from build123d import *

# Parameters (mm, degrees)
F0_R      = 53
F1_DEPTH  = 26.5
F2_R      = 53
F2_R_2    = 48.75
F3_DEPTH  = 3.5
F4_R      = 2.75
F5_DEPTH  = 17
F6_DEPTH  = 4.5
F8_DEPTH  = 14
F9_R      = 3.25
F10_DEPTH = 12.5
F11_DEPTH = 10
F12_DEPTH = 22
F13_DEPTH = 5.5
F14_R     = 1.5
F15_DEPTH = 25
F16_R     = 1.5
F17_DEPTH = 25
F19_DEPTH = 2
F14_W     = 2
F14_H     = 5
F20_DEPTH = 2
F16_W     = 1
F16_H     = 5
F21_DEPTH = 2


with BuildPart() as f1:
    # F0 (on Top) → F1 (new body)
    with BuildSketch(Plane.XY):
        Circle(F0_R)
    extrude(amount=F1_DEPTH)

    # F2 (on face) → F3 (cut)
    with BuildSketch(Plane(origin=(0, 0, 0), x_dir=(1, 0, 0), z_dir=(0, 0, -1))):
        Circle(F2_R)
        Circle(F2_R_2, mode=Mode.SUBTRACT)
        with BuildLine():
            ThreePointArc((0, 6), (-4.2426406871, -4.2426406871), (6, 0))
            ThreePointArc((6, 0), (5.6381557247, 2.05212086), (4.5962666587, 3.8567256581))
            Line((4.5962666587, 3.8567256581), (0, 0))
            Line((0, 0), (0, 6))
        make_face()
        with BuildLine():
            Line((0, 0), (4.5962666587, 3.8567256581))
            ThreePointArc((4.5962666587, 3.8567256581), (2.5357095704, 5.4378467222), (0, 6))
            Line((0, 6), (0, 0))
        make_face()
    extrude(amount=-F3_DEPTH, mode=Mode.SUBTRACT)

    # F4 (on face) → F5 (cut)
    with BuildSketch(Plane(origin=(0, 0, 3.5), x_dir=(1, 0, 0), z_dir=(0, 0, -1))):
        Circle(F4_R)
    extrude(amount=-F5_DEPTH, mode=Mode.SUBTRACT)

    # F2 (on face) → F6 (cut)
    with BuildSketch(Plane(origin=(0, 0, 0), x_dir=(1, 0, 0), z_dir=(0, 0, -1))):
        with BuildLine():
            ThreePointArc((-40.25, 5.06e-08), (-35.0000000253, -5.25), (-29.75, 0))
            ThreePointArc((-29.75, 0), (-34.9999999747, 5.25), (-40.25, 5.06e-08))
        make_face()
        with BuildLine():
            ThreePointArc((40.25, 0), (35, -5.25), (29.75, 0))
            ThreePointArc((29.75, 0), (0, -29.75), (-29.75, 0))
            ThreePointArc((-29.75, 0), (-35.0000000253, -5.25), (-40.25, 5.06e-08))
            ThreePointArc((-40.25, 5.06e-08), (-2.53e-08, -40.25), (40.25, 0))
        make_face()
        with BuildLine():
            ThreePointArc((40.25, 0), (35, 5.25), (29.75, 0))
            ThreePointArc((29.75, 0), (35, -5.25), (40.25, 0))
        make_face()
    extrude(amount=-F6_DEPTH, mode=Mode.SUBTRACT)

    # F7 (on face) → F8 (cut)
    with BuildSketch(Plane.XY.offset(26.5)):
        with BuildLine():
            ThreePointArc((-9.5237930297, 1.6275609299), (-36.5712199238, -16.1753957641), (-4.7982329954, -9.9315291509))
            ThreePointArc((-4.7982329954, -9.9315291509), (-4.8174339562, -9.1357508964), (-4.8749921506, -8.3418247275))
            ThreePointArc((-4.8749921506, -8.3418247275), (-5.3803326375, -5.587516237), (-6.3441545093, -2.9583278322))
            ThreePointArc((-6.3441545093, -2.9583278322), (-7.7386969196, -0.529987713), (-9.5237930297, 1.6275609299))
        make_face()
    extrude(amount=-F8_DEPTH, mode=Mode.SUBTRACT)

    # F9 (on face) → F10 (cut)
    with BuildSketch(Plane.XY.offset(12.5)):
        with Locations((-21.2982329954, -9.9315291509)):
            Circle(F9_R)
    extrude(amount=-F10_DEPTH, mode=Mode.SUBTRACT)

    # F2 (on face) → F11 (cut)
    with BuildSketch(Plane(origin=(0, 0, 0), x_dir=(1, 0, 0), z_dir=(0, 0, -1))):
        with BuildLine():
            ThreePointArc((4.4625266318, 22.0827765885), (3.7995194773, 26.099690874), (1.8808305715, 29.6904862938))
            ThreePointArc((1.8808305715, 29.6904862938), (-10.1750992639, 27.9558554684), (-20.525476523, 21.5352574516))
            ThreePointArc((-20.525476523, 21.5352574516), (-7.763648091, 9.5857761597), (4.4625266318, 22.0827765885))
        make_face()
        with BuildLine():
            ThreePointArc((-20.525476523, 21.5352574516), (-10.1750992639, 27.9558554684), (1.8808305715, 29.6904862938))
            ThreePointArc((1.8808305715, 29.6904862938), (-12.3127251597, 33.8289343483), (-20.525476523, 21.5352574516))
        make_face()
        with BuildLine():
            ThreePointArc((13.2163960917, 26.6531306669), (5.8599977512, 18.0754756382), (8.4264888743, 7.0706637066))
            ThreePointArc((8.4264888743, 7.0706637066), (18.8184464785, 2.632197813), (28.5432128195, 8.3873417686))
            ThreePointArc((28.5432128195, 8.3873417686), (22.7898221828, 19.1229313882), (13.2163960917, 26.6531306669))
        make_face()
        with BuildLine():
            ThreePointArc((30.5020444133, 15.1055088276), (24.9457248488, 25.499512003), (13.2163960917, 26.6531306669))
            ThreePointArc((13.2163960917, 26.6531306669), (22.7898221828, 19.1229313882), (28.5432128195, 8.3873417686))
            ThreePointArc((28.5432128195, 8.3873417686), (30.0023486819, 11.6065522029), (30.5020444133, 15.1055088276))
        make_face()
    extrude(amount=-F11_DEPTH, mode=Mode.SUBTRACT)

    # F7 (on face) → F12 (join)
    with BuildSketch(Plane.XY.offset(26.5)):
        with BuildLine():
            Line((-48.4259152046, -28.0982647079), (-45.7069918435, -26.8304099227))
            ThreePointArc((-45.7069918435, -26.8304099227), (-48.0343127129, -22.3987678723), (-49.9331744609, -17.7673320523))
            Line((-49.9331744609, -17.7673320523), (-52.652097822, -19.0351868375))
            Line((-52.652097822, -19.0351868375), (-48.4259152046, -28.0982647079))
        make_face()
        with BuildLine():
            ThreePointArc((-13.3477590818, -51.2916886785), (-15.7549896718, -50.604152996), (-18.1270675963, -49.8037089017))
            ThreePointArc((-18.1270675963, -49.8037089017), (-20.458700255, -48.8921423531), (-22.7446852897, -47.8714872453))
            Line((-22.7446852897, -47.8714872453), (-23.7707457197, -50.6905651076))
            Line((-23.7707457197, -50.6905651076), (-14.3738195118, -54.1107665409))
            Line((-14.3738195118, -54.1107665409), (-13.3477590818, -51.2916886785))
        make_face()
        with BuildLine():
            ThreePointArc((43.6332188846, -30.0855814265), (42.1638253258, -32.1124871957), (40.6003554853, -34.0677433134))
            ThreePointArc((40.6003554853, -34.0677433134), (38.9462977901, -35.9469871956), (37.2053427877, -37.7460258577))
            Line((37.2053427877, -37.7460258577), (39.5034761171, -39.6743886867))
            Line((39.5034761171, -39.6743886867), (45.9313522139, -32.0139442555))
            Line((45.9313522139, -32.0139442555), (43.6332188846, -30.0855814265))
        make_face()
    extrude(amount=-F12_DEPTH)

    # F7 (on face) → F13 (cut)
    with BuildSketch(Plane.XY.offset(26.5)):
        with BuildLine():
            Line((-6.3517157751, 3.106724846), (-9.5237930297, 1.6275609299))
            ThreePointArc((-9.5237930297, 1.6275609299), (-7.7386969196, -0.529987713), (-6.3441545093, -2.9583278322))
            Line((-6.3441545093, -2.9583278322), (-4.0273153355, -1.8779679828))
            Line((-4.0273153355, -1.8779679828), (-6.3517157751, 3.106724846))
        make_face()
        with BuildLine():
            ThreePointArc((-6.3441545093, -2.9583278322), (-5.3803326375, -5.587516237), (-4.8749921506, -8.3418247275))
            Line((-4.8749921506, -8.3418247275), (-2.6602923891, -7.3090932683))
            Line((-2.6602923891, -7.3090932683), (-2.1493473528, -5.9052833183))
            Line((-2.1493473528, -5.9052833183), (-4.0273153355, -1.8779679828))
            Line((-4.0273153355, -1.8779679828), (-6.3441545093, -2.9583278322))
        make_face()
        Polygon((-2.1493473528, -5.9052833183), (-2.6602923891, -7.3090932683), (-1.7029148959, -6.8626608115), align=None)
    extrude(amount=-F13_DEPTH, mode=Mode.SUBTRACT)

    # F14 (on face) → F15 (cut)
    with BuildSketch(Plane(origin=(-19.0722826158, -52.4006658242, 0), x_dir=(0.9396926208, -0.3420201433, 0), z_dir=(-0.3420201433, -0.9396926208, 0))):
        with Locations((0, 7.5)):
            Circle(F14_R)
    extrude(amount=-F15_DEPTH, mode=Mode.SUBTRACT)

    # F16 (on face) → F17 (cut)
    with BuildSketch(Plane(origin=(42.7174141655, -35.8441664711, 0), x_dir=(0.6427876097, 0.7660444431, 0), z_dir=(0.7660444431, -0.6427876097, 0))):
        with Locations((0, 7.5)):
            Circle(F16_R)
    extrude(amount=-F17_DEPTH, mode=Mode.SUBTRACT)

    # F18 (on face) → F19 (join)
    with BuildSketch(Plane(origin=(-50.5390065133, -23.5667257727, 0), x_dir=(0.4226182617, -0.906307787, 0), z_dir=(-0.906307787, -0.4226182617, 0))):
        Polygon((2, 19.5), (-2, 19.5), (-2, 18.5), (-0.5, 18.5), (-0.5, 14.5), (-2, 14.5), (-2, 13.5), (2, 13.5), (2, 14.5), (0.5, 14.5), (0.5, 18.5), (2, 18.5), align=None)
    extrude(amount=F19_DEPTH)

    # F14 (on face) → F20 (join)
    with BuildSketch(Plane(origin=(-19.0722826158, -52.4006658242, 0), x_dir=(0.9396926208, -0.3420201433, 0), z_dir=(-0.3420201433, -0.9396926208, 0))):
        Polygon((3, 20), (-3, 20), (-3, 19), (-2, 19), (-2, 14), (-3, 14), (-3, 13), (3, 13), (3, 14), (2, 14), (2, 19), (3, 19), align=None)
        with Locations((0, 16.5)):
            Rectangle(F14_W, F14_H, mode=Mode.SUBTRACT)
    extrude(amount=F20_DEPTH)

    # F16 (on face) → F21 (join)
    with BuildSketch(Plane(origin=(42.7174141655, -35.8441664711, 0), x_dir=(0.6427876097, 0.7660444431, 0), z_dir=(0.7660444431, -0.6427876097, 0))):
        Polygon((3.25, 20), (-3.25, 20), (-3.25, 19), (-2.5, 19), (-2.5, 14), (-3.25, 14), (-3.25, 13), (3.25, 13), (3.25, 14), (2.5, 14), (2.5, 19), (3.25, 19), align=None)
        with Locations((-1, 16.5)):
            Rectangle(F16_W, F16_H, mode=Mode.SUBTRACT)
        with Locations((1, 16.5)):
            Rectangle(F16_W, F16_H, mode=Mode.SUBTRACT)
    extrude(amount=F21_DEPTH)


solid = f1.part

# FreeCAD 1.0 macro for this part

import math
import FreeCAD as App
import Part
import Sketcher

V = App.Vector
Q = App.Units.Quantity

doc = App.newDocument("Part")
body = doc.addObject("PartDesign::Body", "Body")

sketch1 = doc.addObject("Sketcher::SketchObject", "Sketch")
body.addObject(sketch1)
sketch1.AttachmentSupport = (doc.XY_Plane, [""])
sketch1.MapMode = "FlatFace"
sketch1.addGeometry(Part.Circle(V(0, 0, 0), V(0, 0, 1), 53), False)
sketch1.addConstraint(Sketcher.Constraint("Coincident", 0, 3, -1, 1))
sketch1.addConstraint(Sketcher.Constraint("Diameter", 0, Q("106 mm")))
pad1 = doc.addObject("PartDesign::Pad", "Pad")
body.addObject(pad1)
pad1.Profile = sketch1
pad1.Length = 26.5

sketch2 = doc.addObject("Sketcher::SketchObject", "Sketch001")
body.addObject(sketch2)
sketch2.AttachmentSupport = (doc.XY_Plane, [""])
sketch2.MapMode = "FlatFace"
sketch2.addGeometry(Part.Circle(V(0, 0, 0), V(0, 0, 1), 53), False)
sketch2.addGeometry(Part.Circle(V(0, 0, 0), V(0, 0, 1), 48.75), False)
sketch2.addGeometry(Part.ArcOfCircle(Part.Circle(V(0, 0, 0), V(0, 0, 1), 6), math.radians(0), math.radians(270)), False)
sketch2.addGeometry(Part.ArcOfCircle(Part.Circle(V(0, 0, 0), V(0, 0, 1), 6), math.radians(-40), math.radians(0)), False)
sketch2.addGeometry(Part.ArcOfCircle(Part.Circle(V(0, 0, 0), V(0, 0, 1), 6), math.radians(-90), math.radians(-40)), False)
sketch2.addConstraint(Sketcher.Constraint("Tangent", 2, 1, 3, 2))
sketch2.addConstraint(Sketcher.Constraint("Tangent", 3, 1, 4, 2))
sketch2.addConstraint(Sketcher.Constraint("Tangent", 4, 1, 2, 2))
sketch2.addConstraint(Sketcher.Constraint("Coincident", 0, 3, -1, 1))
sketch2.addConstraint(Sketcher.Constraint("Coincident", 1, 3, -1, 1))
sketch2.addConstraint(Sketcher.Constraint("Coincident", 2, 3, -1, 1))
sketch2.addConstraint(Sketcher.Constraint("PointOnObject", 2, 1, -1))
sketch2.addConstraint(Sketcher.Constraint("PointOnObject", 4, 1, -2))
sketch2.addConstraint(Sketcher.Constraint("Diameter", 0, Q("106 mm")))
sketch2.addConstraint(Sketcher.Constraint("Radius", 2, Q("6 mm")))
sketch2.addConstraint(Sketcher.Constraint("Diameter", 1, Q("97.5 mm")))
sketch2.addConstraint(Sketcher.Constraint("DistanceX", -1, 1, 3, 1, Q("4.596267 mm")))
pocket1 = doc.addObject("PartDesign::Pocket", "Pocket")
body.addObject(pocket1)
pocket1.Profile = sketch2
pocket1.Length = 3.5
pocket1.Reversed = True

sketch3 = doc.addObject("Sketcher::SketchObject", "Sketch002")
body.addObject(sketch3)
sketch3.AttachmentSupport = (doc.XY_Plane, [""])
sketch3.MapMode = "FlatFace"
sketch3.AttachmentOffset = App.Placement(V(0, 0, 3.5), App.Rotation())
sketch3.addGeometry(Part.Circle(V(0, 0, 0), V(0, 0, 1), 2.75), False)
sketch3.addConstraint(Sketcher.Constraint("Coincident", 0, 3, -1, 1))
sketch3.addConstraint(Sketcher.Constraint("Diameter", 0, Q("5.5 mm")))
pocket2 = doc.addObject("PartDesign::Pocket", "Pocket001")
body.addObject(pocket2)
pocket2.Profile = sketch3
pocket2.Length = 17
pocket2.Reversed = True

sketch4 = doc.addObject("Sketcher::SketchObject", "Sketch003")
body.addObject(sketch4)
sketch4.AttachmentSupport = (doc.XY_Plane, [""])
sketch4.MapMode = "FlatFace"
sketch4.addGeometry(Part.ArcOfCircle(Part.Circle(V(-35, 0, 0), V(0, 0, 1), 5.25), math.radians(-179.999999), math.radians(0)), False)
sketch4.addGeometry(Part.ArcOfCircle(Part.Circle(V(0, 0, 0), V(0, 0, 1), 40.25), math.radians(0), math.radians(180)), False)
sketch4.addGeometry(Part.ArcOfCircle(Part.Circle(V(35, 0, 0), V(0, 0, 1), 5.25), math.radians(180), math.radians(360)), False)
sketch4.addGeometry(Part.ArcOfCircle(Part.Circle(V(0, 0, 0), V(0, 0, 1), 29.75), math.radians(0), math.radians(180)), False)
sketch4.addConstraint(Sketcher.Constraint("Tangent", 0, 1, 1, 2))
sketch4.addConstraint(Sketcher.Constraint("Tangent", 1, 1, 2, 2))
sketch4.addConstraint(Sketcher.Constraint("Tangent", 2, 1, 3, 1))
sketch4.addConstraint(Sketcher.Constraint("Tangent", 3, 2, 0, 2))
sketch4.addConstraint(Sketcher.Constraint("Coincident", 1, 3, -1, 1))
sketch4.addConstraint(Sketcher.Constraint("Coincident", 3, 3, -1, 1))
sketch4.addConstraint(Sketcher.Constraint("PointOnObject", 0, 3, -1))
sketch4.addConstraint(Sketcher.Constraint("PointOnObject", 2, 3, -1))
sketch4.addConstraint(Sketcher.Constraint("Radius", 0, Q("5.25 mm")))
sketch4.addConstraint(Sketcher.Constraint("Radius", 1, Q("40.25 mm")))
pocket3 = doc.addObject("PartDesign::Pocket", "Pocket002")
body.addObject(pocket3)
pocket3.Profile = sketch4
pocket3.Length = 4.5
pocket3.Reversed = True

sketch5 = doc.addObject("Sketcher::SketchObject", "Sketch004")
body.addObject(sketch5)
sketch5.AttachmentSupport = (doc.XY_Plane, [""])
sketch5.MapMode = "FlatFace"
sketch5.AttachmentOffset = App.Placement(V(0, 0, 26.5), App.Rotation())
sketch5.addGeometry(Part.ArcOfCircle(Part.Circle(V(-21.298233, -9.931529, 0), V(0, 0, 1), 16.5), math.radians(44.471221), math.radians(360)), False)
sketch5.addGeometry(Part.ArcOfCircle(Part.Circle(V(-21.298233, -9.931529, 0), V(0, 0, 1), 16.5), math.radians(0), math.radians(5.528779)), False)
sketch5.addGeometry(Part.ArcOfCircle(Part.Circle(V(-21.298233, -9.931529, 0), V(0, 0, 1), 16.5), math.radians(5.528779), math.radians(25)), False)
sketch5.addGeometry(Part.ArcOfCircle(Part.Circle(V(-21.298233, -9.931529, 0), V(0, 0, 1), 16.5), math.radians(25), math.radians(44.471221)), False)
sketch5.addConstraint(Sketcher.Constraint("Tangent", 0, 2, 1, 1))
sketch5.addConstraint(Sketcher.Constraint("Tangent", 1, 2, 2, 1))
sketch5.addConstraint(Sketcher.Constraint("Tangent", 2, 2, 3, 1))
sketch5.addConstraint(Sketcher.Constraint("Tangent", 3, 2, 0, 1))
sketch5.addConstraint(Sketcher.Constraint("Equal", 0, 1))
sketch5.addConstraint(Sketcher.Constraint("Horizontal", 3, 3, 0, 2))
sketch5.addConstraint(Sketcher.Constraint("Radius", 0, Q("16.5 mm")))
sketch5.addConstraint(Sketcher.Constraint("DistanceY", 0, 2, 2, 2, Q("6.973201 mm")))
sketch5.addConstraint(Sketcher.Constraint("DistanceX", 3, 2, 1, 2, Q("4.648801 mm")))
sketch5.addConstraint(Sketcher.Constraint("DistanceY", 0, 3, -1, 1, Q("9.931529 mm")))
sketch5.addConstraint(Sketcher.Constraint("DistanceY", -1, 1, 3, 2, Q("1.627561 mm")))
sketch5.addConstraint(Sketcher.Constraint("DistanceX", 0, 3, -1, 1, Q("21.298233 mm")))
pocket4 = doc.addObject("PartDesign::Pocket", "Pocket003")
body.addObject(pocket4)
pocket4.Profile = sketch5
pocket4.Length = 14

sketch6 = doc.addObject("Sketcher::SketchObject", "Sketch005")
body.addObject(sketch6)
sketch6.AttachmentSupport = (doc.XY_Plane, [""])
sketch6.MapMode = "FlatFace"
sketch6.AttachmentOffset = App.Placement(V(0, 0, 12.5), App.Rotation())
sketch6.addGeometry(Part.Circle(V(-21.298233, -9.931529, 0), V(0, 0, 1), 3.25), False)
sketch6.addConstraint(Sketcher.Constraint("Diameter", 0, Q("6.5 mm")))
sketch6.addConstraint(Sketcher.Constraint("DistanceY", 0, 3, -1, 1, Q("9.931529 mm")))
sketch6.addConstraint(Sketcher.Constraint("DistanceX", 0, 3, -1, 1, Q("21.298233 mm")))
pocket5 = doc.addObject("PartDesign::Pocket", "Pocket004")
body.addObject(pocket5)
pocket5.Profile = sketch6
pocket5.Length = 12.5

sketch7 = doc.addObject("Sketcher::SketchObject", "Sketch006")
body.addObject(sketch7)
sketch7.AttachmentSupport = (doc.XY_Plane, [""])
sketch7.MapMode = "FlatFace"
sketch7.addGeometry(Part.ArcOfCircle(Part.Circle(V(-8.037473, -22.082777, 0), V(0, 0, 1), 12.5), math.radians(-37.489554), math.radians(0)), False)
sketch7.addGeometry(Part.ArcOfCircle(Part.Circle(V(-8.037473, -22.082777, 0), V(0, 0, 1), 12.5), math.radians(177.489554), math.radians(322.510446)), False)
sketch7.addGeometry(Part.ArcOfCircle(Part.Circle(V(-8.037473, -22.082777, 0), V(0, 0, 1), 12.5), math.radians(0), math.radians(177.489554)), False)
sketch7.addGeometry(Part.ArcOfCircle(Part.Circle(V(18.002044, -15.105509, 0), V(0, 0, 1), 12.5), math.radians(140), math.radians(247.489554)), False)
sketch7.addGeometry(Part.ArcOfCircle(Part.Circle(V(18.002044, -15.105509, 0), V(0, 0, 1), 12.5), math.radians(32.510446), math.radians(140)), False)
sketch7.addGeometry(Part.ArcOfCircle(Part.Circle(V(18.002044, -15.105509, 0), V(0, 0, 1), 12.5), math.radians(0), math.radians(32.510446)), False)
sketch7.addGeometry(Part.ArcOfCircle(Part.Circle(V(18.002044, -15.105509, 0), V(0, 0, 1), 12.5), math.radians(-112.510446), math.radians(0)), False)
sketch7.addConstraint(Sketcher.Constraint("Tangent", 0, 1, 1, 2))
sketch7.addConstraint(Sketcher.Constraint("Tangent", 1, 1, 2, 2))
sketch7.addConstraint(Sketcher.Constraint("Tangent", 2, 1, 0, 2))
sketch7.addConstraint(Sketcher.Constraint("Tangent", 3, 1, 4, 2))
sketch7.addConstraint(Sketcher.Constraint("Tangent", 4, 1, 5, 2))
sketch7.addConstraint(Sketcher.Constraint("Tangent", 5, 1, 6, 2))
sketch7.addConstraint(Sketcher.Constraint("Tangent", 6, 1, 3, 2))
sketch7.addConstraint(Sketcher.Constraint("Equal", 2, 3))
sketch7.addConstraint(Sketcher.Constraint("Equal", 3, 4))
sketch7.addConstraint(Sketcher.Constraint("Horizontal", 1, 3, 2, 1))
sketch7.addConstraint(Sketcher.Constraint("Horizontal", 6, 3, 5, 1))
sketch7.addConstraint(Sketcher.Constraint("Radius", 0, Q("12.5 mm")))
sketch7.addConstraint(Sketcher.Constraint("DistanceY", 3, 3, -1, 1, Q("15.105509 mm")))
sketch7.addConstraint(Sketcher.Constraint("DistanceX", -1, 1, 0, 1, Q("1.880831 mm")))
sketch7.addConstraint(Sketcher.Constraint("DistanceX", -1, 1, 3, 1, Q("8.426489 mm")))
sketch7.addConstraint(Sketcher.Constraint("DistanceY", 4, 1, -1, 1, Q("8.387342 mm")))
sketch7.addConstraint(Sketcher.Constraint("DistanceY", 6, 1, -1, 1, Q("26.653131 mm")))
sketch7.addConstraint(Sketcher.Constraint("DistanceY", 0, 1, 0, 3, Q("7.60771 mm")))
sketch7.addConstraint(Sketcher.Constraint("DistanceY", 1, 3, 1, 1, Q("0.547519 mm")))
sketch7.addConstraint(Sketcher.Constraint("DistanceX", 1, 1, 3, 3, Q("38.527521 mm")))
sketch7.addConstraint(Sketcher.Constraint("DistanceY", 1, 1, 3, 3, Q("6.429749 mm")))
pocket6 = doc.addObject("PartDesign::Pocket", "Pocket005")
body.addObject(pocket6)
pocket6.Profile = sketch7
pocket6.Length = 10
pocket6.Reversed = True

sketch8 = doc.addObject("Sketcher::SketchObject", "Sketch007")
body.addObject(sketch8)
sketch8.AttachmentSupport = (doc.XY_Plane, [""])
sketch8.MapMode = "FlatFace"
sketch8.AttachmentOffset = App.Placement(V(0, 0, 26.5), App.Rotation())
sketch8.addGeometry(Part.LineSegment(V(-48.425915, -28.098265, 0), V(-45.706992, -26.83041, 0)), False)
sketch8.addGeometry(Part.ArcOfCircle(Part.Circle(V(0, 0, 0), V(0, 0, 1), 53), math.radians(-160.413312), math.radians(-149.586688)), False)
sketch8.addGeometry(Part.LineSegment(V(-49.933174, -17.767332, 0), V(-52.652098, -19.035187, 0)), False)
sketch8.addGeometry(Part.LineSegment(V(-52.652098, -19.035187, 0), V(-48.425915, -28.098265, 0)), False)
sketch8.addGeometry(Part.ArcOfCircle(Part.Circle(V(0, 0, 0), V(0, 0, 1), 53), math.radians(-110), math.radians(-104.586688)), False)
sketch8.addGeometry(Part.ArcOfCircle(Part.Circle(V(0, 0, 0), V(0, 0, 1), 53), math.radians(-115.413312), math.radians(-110)), False)
sketch8.addGeometry(Part.LineSegment(V(-22.744685, -47.871487, 0), V(-23.770746, -50.690565, 0)), False)
sketch8.addGeometry(Part.LineSegment(V(-23.770746, -50.690565, 0), V(-14.37382, -54.110767, 0)), False)
sketch8.addGeometry(Part.LineSegment(V(-14.37382, -54.110767, 0), V(-13.347759, -51.291689, 0)), False)
sketch8.addGeometry(Part.ArcOfCircle(Part.Circle(V(0, 0, 0), V(0, 0, 1), 53), math.radians(-40), math.radians(-34.586688)), False)
sketch8.addGeometry(Part.ArcOfCircle(Part.Circle(V(0, 0, 0), V(0, 0, 1), 53), math.radians(-45.413312), math.radians(-40)), False)
sketch8.addGeometry(Part.LineSegment(V(37.205343, -37.746026, 0), V(39.503476, -39.674389, 0)), False)
sketch8.addGeometry(Part.LineSegment(V(39.503476, -39.674389, 0), V(45.931352, -32.013944, 0)), False)
sketch8.addGeometry(Part.LineSegment(V(45.931352, -32.013944, 0), V(43.633219, -30.085581, 0)), False)
sketch8.addConstraint(Sketcher.Constraint("Coincident", 0, 2, 1, 2))
sketch8.addConstraint(Sketcher.Constraint("Coincident", 1, 1, 2, 1))
sketch8.addConstraint(Sketcher.Constraint("Coincident", 2, 2, 3, 1))
sketch8.addConstraint(Sketcher.Constraint("Coincident", 3, 2, 0, 1))
sketch8.addConstraint(Sketcher.Constraint("Tangent", 4, 1, 5, 2))
sketch8.addConstraint(Sketcher.Constraint("Coincident", 5, 1, 6, 1))
sketch8.addConstraint(Sketcher.Constraint("Coincident", 6, 2, 7, 1))
sketch8.addConstraint(Sketcher.Constraint("Coincident", 7, 2, 8, 1))
sketch8.addConstraint(Sketcher.Constraint("Coincident", 8, 2, 4, 2))
sketch8.addConstraint(Sketcher.Constraint("Tangent", 9, 1, 10, 2))
sketch8.addConstraint(Sketcher.Constraint("Coincident", 10, 1, 11, 1))
sketch8.addConstraint(Sketcher.Constraint("Coincident", 11, 2, 12, 1))
sketch8.addConstraint(Sketcher.Constraint("Coincident", 12, 2, 13, 1))
sketch8.addConstraint(Sketcher.Constraint("Coincident", 13, 2, 9, 2))
sketch8.addConstraint(Sketcher.Constraint("Coincident", 1, 3, -1, 1))
sketch8.addConstraint(Sketcher.Constraint("Coincident", 4, 3, -1, 1))
sketch8.addConstraint(Sketcher.Constraint("Coincident", 9, 3, -1, 1))
sketch8.addConstraint(Sketcher.Constraint("Equal", 1, 4))
sketch8.addConstraint(Sketcher.Constraint("Equal", 4, 5))
sketch8.addConstraint(Sketcher.Constraint("Equal", 5, 9))
sketch8.addConstraint(Sketcher.Constraint("Equal", 9, 10))
sketch8.addConstraint(Sketcher.Constraint("Parallel", 0, 2))
sketch8.addConstraint(Sketcher.Constraint("Perpendicular", 2, 3))
sketch8.addConstraint(Sketcher.Constraint("Perpendicular", 6, 7))
sketch8.addConstraint(Sketcher.Constraint("Perpendicular", 7, 8))
sketch8.addConstraint(Sketcher.Constraint("Perpendicular", 11, 12))
sketch8.addConstraint(Sketcher.Constraint("Perpendicular", 12, 13))
sketch8.addConstraint(Sketcher.Constraint("Equal", 0, 2))
sketch8.addConstraint(Sketcher.Constraint("Equal", 2, 6))
sketch8.addConstraint(Sketcher.Constraint("Equal", 3, 7))
sketch8.addConstraint(Sketcher.Constraint("Equal", 6, 8))
sketch8.addConstraint(Sketcher.Constraint("Equal", 8, 11))
sketch8.addConstraint(Sketcher.Constraint("Equal", 7, 12))
sketch8.addConstraint(Sketcher.Constraint("Equal", 11, 13))
sketch8.addConstraint(Sketcher.Constraint("Radius", 1, Q("53 mm")))
sketch8.addConstraint(Sketcher.Constraint("Angle", 0, Q("25 deg")))
sketch8.addConstraint(Sketcher.Constraint("Angle", 6, Q("-110 deg")))
sketch8.addConstraint(Sketcher.Constraint("Angle", 11, Q("-40 deg")))
sketch8.addConstraint(Sketcher.Constraint("Distance", 0, Q("3 mm")))
sketch8.addConstraint(Sketcher.Constraint("Distance", 3, Q("10 mm")))
sketch8.addConstraint(Sketcher.Constraint("DistanceY", 4, 1, 0, 2, Q("22.973299 mm")))
sketch8.addConstraint(Sketcher.Constraint("DistanceY", 9, 1, 12, 2, Q("2.053799 mm")))
pad2 = doc.addObject("PartDesign::Pad", "Pad001")
body.addObject(pad2)
pad2.Profile = sketch8
pad2.Length = 22
pad2.Reversed = True

sketch9 = doc.addObject("Sketcher::SketchObject", "Sketch008")
body.addObject(sketch9)
sketch9.AttachmentSupport = (doc.XY_Plane, [""])
sketch9.MapMode = "FlatFace"
sketch9.AttachmentOffset = App.Placement(V(0, 0, 26.5), App.Rotation())
sketch9.addGeometry(Part.LineSegment(V(-6.351716, 3.106725, 0), V(-9.523793, 1.627561, 0)), False)
sketch9.addGeometry(Part.ArcOfCircle(Part.Circle(V(-21.298233, -9.931529, 0), V(0, 0, 1), 16.5), math.radians(25), math.radians(44.471221)), False)
sketch9.addGeometry(Part.ArcOfCircle(Part.Circle(V(-21.298233, -9.931529, 0), V(0, 0, 1), 16.5), math.radians(5.528779), math.radians(25)), False)
sketch9.addGeometry(Part.LineSegment(V(-4.874992, -8.341825, 0), V(-2.660292, -7.309093, 0)), False)
sketch9.addGeometry(Part.LineSegment(V(-2.660292, -7.309093, 0), V(-1.702915, -6.862661, 0)), False)
sketch9.addGeometry(Part.LineSegment(V(-1.702915, -6.862661, 0), V(-2.149347, -5.905283, 0)), False)
sketch9.addGeometry(Part.LineSegment(V(-2.149347, -5.905283, 0), V(-4.027315, -1.877968, 0)), False)
sketch9.addGeometry(Part.LineSegment(V(-4.027315, -1.877968, 0), V(-6.351716, 3.106725, 0)), False)
sketch9.addConstraint(Sketcher.Constraint("Coincident", 0, 2, 1, 2))
sketch9.addConstraint(Sketcher.Constraint("Tangent", 1, 1, 2, 2))
sketch9.addConstraint(Sketcher.Constraint("Coincident", 2, 1, 3, 1))
sketch9.addConstraint(Sketcher.Constraint("Coincident", 3, 2, 4, 1))
sketch9.addConstraint(Sketcher.Constraint("Coincident", 4, 2, 5, 1))
sketch9.addConstraint(Sketcher.Constraint("Coincident", 5, 2, 6, 1))
sketch9.addConstraint(Sketcher.Constraint("Coincident", 6, 2, 7, 1))
sketch9.addConstraint(Sketcher.Constraint("Coincident", 7, 2, 0, 1))
sketch9.addConstraint(Sketcher.Constraint("Equal", 1, 2))
sketch9.addConstraint(Sketcher.Constraint("Parallel", 0, 3))
sketch9.addConstraint(Sketcher.Constraint("Parallel", 3, 4))
sketch9.addConstraint(Sketcher.Constraint("Perpendicular", 4, 5))
sketch9.addConstraint(Sketcher.Constraint("Parallel", 5, 6))
sketch9.addConstraint(Sketcher.Constraint("Parallel", 6, 7))
sketch9.addConstraint(Sketcher.Constraint("Equal", 4, 5))
sketch9.addConstraint(Sketcher.Constraint("Radius", 1, Q("16.5 mm")))
sketch9.addConstraint(Sketcher.Constraint("Angle", 0, Q("-155 deg")))
sketch9.addConstraint(Sketcher.Constraint("Distance", 0, Q("3.5 mm")))
sketch9.addConstraint(Sketcher.Constraint("Distance", 7, Q("5.5 mm")))
sketch9.addConstraint(Sketcher.Constraint("DistanceY", 2, 3, 1, 1, Q("6.973201 mm")))
sketch9.addConstraint(Sketcher.Constraint("DistanceX", 0, 2, 2, 1, Q("4.648801 mm")))
sketch9.addConstraint(Sketcher.Constraint("DistanceX", 2, 1, 3, 2, Q("2.2147 mm")))
sketch9.addConstraint(Sketcher.Constraint("DistanceX", 6, 2, 4, 2, Q("2.3244 mm")))
sketch9.addConstraint(Sketcher.Constraint("DistanceY", 1, 3, -1, 1, Q("9.931529 mm")))
sketch9.addConstraint(Sketcher.Constraint("DistanceX", 1, 3, -1, 1, Q("21.298233 mm")))
pocket7 = doc.addObject("PartDesign::Pocket", "Pocket006")
body.addObject(pocket7)
pocket7.Profile = sketch9
pocket7.Length = 5.5

sketch10 = doc.addObject("Sketcher::SketchObject", "Sketch009")
body.addObject(sketch10)
sketch10.Placement = App.Placement(V(-19.072283, -52.400666, 0), App.Rotation(V(0.939692621, -0.342020143, 0), V(0, 0, 1), V(-0.342020143, -0.939692621, 0), "ZXY"))
sketch10.addGeometry(Part.Circle(V(0, 7.5, 0), V(0, 0, 1), 1.5), False)
sketch10.addConstraint(Sketcher.Constraint("PointOnObject", 0, 3, -2))
sketch10.addConstraint(Sketcher.Constraint("Diameter", 0, Q("3 mm")))
sketch10.addConstraint(Sketcher.Constraint("DistanceY", -1, 1, 0, 3, Q("7.5 mm")))
pocket8 = doc.addObject("PartDesign::Pocket", "Pocket007")
body.addObject(pocket8)
pocket8.Profile = sketch10
pocket8.Length = 25

sketch11 = doc.addObject("Sketcher::SketchObject", "Sketch010")
body.addObject(sketch11)
sketch11.Placement = App.Placement(V(42.717414, -35.844166, 0), App.Rotation(V(0.64278761, 0.766044443, 0), V(0, 0, 1), V(0.766044443, -0.64278761, 0), "ZXY"))
sketch11.addGeometry(Part.Circle(V(0, 7.5, 0), V(0, 0, 1), 1.5), False)
sketch11.addConstraint(Sketcher.Constraint("PointOnObject", 0, 3, -2))
sketch11.addConstraint(Sketcher.Constraint("Diameter", 0, Q("3 mm")))
sketch11.addConstraint(Sketcher.Constraint("DistanceY", -1, 1, 0, 3, Q("7.5 mm")))
pocket9 = doc.addObject("PartDesign::Pocket", "Pocket008")
body.addObject(pocket9)
pocket9.Profile = sketch11
pocket9.Length = 25

sketch12 = doc.addObject("Sketcher::SketchObject", "Sketch011")
body.addObject(sketch12)
sketch12.Placement = App.Placement(V(-50.539007, -23.566726, 0), App.Rotation(V(0.422618262, -0.906307787, 0), V(0, 0, 1), V(-0.906307787, -0.422618262, 0), "ZXY"))
sketch12.addGeometry(Part.LineSegment(V(2, 19.5, 0), V(-2, 19.5, 0)), False)
sketch12.addGeometry(Part.LineSegment(V(-2, 19.5, 0), V(-2, 18.5, 0)), False)
sketch12.addGeometry(Part.LineSegment(V(-2, 18.5, 0), V(-0.5, 18.5, 0)), False)
sketch12.addGeometry(Part.LineSegment(V(-0.5, 18.5, 0), V(-0.5, 14.5, 0)), False)
sketch12.addGeometry(Part.LineSegment(V(-0.5, 14.5, 0), V(-2, 14.5, 0)), False)
sketch12.addGeometry(Part.LineSegment(V(-2, 14.5, 0), V(-2, 13.5, 0)), False)
sketch12.addGeometry(Part.LineSegment(V(-2, 13.5, 0), V(2, 13.5, 0)), False)
sketch12.addGeometry(Part.LineSegment(V(2, 13.5, 0), V(2, 14.5, 0)), False)
sketch12.addGeometry(Part.LineSegment(V(2, 14.5, 0), V(0.5, 14.5, 0)), False)
sketch12.addGeometry(Part.LineSegment(V(0.5, 14.5, 0), V(0.5, 18.5, 0)), False)
sketch12.addGeometry(Part.LineSegment(V(0.5, 18.5, 0), V(2, 18.5, 0)), False)
sketch12.addGeometry(Part.LineSegment(V(2, 18.5, 0), V(2, 19.5, 0)), False)
sketch12.addConstraint(Sketcher.Constraint("Coincident", 0, 2, 1, 1))
sketch12.addConstraint(Sketcher.Constraint("Coincident", 1, 2, 2, 1))
sketch12.addConstraint(Sketcher.Constraint("Coincident", 2, 2, 3, 1))
sketch12.addConstraint(Sketcher.Constraint("Coincident", 3, 2, 4, 1))
sketch12.addConstraint(Sketcher.Constraint("Coincident", 4, 2, 5, 1))
sketch12.addConstraint(Sketcher.Constraint("Coincident", 5, 2, 6, 1))
sketch12.addConstraint(Sketcher.Constraint("Coincident", 6, 2, 7, 1))
sketch12.addConstraint(Sketcher.Constraint("Coincident", 7, 2, 8, 1))
sketch12.addConstraint(Sketcher.Constraint("Coincident", 8, 2, 9, 1))
sketch12.addConstraint(Sketcher.Constraint("Coincident", 9, 2, 10, 1))
sketch12.addConstraint(Sketcher.Constraint("Coincident", 10, 2, 11, 1))
sketch12.addConstraint(Sketcher.Constraint("Coincident", 11, 2, 0, 1))
sketch12.addConstraint(Sketcher.Constraint("Horizontal", 0))
sketch12.addConstraint(Sketcher.Constraint("Vertical", 1))
sketch12.addConstraint(Sketcher.Constraint("Horizontal", 2))
sketch12.addConstraint(Sketcher.Constraint("Vertical", 3))
sketch12.addConstraint(Sketcher.Constraint("Horizontal", 4))
sketch12.addConstraint(Sketcher.Constraint("Vertical", 5))
sketch12.addConstraint(Sketcher.Constraint("Horizontal", 6))
sketch12.addConstraint(Sketcher.Constraint("Vertical", 7))
sketch12.addConstraint(Sketcher.Constraint("Horizontal", 8))
sketch12.addConstraint(Sketcher.Constraint("Vertical", 9))
sketch12.addConstraint(Sketcher.Constraint("Horizontal", 10))
sketch12.addConstraint(Sketcher.Constraint("Vertical", 11))
sketch12.addConstraint(Sketcher.Constraint("Symmetric", 4, 2, 7, 2, -2))
sketch12.addConstraint(Sketcher.Constraint("Symmetric", 2, 2, 9, 2, -2))
sketch12.addConstraint(Sketcher.Constraint("Vertical", 1, 2, 4, 2))
sketch12.addConstraint(Sketcher.Constraint("Vertical", 7, 2, 10, 2))
sketch12.addConstraint(Sketcher.Constraint("Equal", 6, 3))
sketch12.addConstraint(Sketcher.Constraint("Equal", 1, 5))
sketch12.addConstraint(Sketcher.Constraint("DistanceX", 0, 2, 0, 1, Q("4 mm")))
sketch12.addConstraint(Sketcher.Constraint("DistanceY", 1, 2, 1, 1, Q("1 mm")))
sketch12.addConstraint(Sketcher.Constraint("DistanceX", 2, 1, 2, 2, Q("1.5 mm")))
sketch12.addConstraint(Sketcher.Constraint("DistanceY", -1, 1, 0, 2, Q("19.5 mm")))
pad3 = doc.addObject("PartDesign::Pad", "Pad002")
body.addObject(pad3)
pad3.Profile = sketch12
pad3.Length = 2

sketch13 = doc.addObject("Sketcher::SketchObject", "Sketch012")
body.addObject(sketch13)
sketch13.Placement = App.Placement(V(-19.072283, -52.400666, 0), App.Rotation(V(0.939692621, -0.342020143, 0), V(0, 0, 1), V(-0.342020143, -0.939692621, 0), "ZXY"))
sketch13.addGeometry(Part.LineSegment(V(3, 20, 0), V(-3, 20, 0)), False)
sketch13.addGeometry(Part.LineSegment(V(-3, 20, 0), V(-3, 19, 0)), False)
sketch13.addGeometry(Part.LineSegment(V(-3, 19, 0), V(-2, 19, 0)), False)
sketch13.addGeometry(Part.LineSegment(V(-2, 19, 0), V(-2, 14, 0)), False)
sketch13.addGeometry(Part.LineSegment(V(-2, 14, 0), V(-3, 14, 0)), False)
sketch13.addGeometry(Part.LineSegment(V(-3, 14, 0), V(-3, 13, 0)), False)
sketch13.addGeometry(Part.LineSegment(V(-3, 13, 0), V(3, 13, 0)), False)
sketch13.addGeometry(Part.LineSegment(V(3, 13, 0), V(3, 14, 0)), False)
sketch13.addGeometry(Part.LineSegment(V(3, 14, 0), V(2, 14, 0)), False)
sketch13.addGeometry(Part.LineSegment(V(2, 14, 0), V(2, 19, 0)), False)
sketch13.addGeometry(Part.LineSegment(V(2, 19, 0), V(3, 19, 0)), False)
sketch13.addGeometry(Part.LineSegment(V(3, 19, 0), V(3, 20, 0)), False)
sketch13.addGeometry(Part.LineSegment(V(1, 14, 0), V(-1, 14, 0)), False)
sketch13.addGeometry(Part.LineSegment(V(-1, 14, 0), V(-1, 19, 0)), False)
sketch13.addGeometry(Part.LineSegment(V(-1, 19, 0), V(1, 19, 0)), False)
sketch13.addGeometry(Part.LineSegment(V(1, 19, 0), V(1, 14, 0)), False)
sketch13.addConstraint(Sketcher.Constraint("Coincident", 0, 2, 1, 1))
sketch13.addConstraint(Sketcher.Constraint("Coincident", 1, 2, 2, 1))
sketch13.addConstraint(Sketcher.Constraint("Coincident", 2, 2, 3, 1))
sketch13.addConstraint(Sketcher.Constraint("Coincident", 3, 2, 4, 1))
sketch13.addConstraint(Sketcher.Constraint("Coincident", 4, 2, 5, 1))
sketch13.addConstraint(Sketcher.Constraint("Coincident", 5, 2, 6, 1))
sketch13.addConstraint(Sketcher.Constraint("Coincident", 6, 2, 7, 1))
sketch13.addConstraint(Sketcher.Constraint("Coincident", 7, 2, 8, 1))
sketch13.addConstraint(Sketcher.Constraint("Coincident", 8, 2, 9, 1))
sketch13.addConstraint(Sketcher.Constraint("Coincident", 9, 2, 10, 1))
sketch13.addConstraint(Sketcher.Constraint("Coincident", 10, 2, 11, 1))
sketch13.addConstraint(Sketcher.Constraint("Coincident", 11, 2, 0, 1))
sketch13.addConstraint(Sketcher.Constraint("Coincident", 12, 2, 13, 1))
sketch13.addConstraint(Sketcher.Constraint("Coincident", 13, 2, 14, 1))
sketch13.addConstraint(Sketcher.Constraint("Coincident", 14, 2, 15, 1))
sketch13.addConstraint(Sketcher.Constraint("Coincident", 15, 2, 12, 1))
sketch13.addConstraint(Sketcher.Constraint("Horizontal", 0))
sketch13.addConstraint(Sketcher.Constraint("Vertical", 1))
sketch13.addConstraint(Sketcher.Constraint("Horizontal", 2))
sketch13.addConstraint(Sketcher.Constraint("Vertical", 3))
sketch13.addConstraint(Sketcher.Constraint("Horizontal", 4))
sketch13.addConstraint(Sketcher.Constraint("Vertical", 5))
sketch13.addConstraint(Sketcher.Constraint("Horizontal", 6))
sketch13.addConstraint(Sketcher.Constraint("Vertical", 7))
sketch13.addConstraint(Sketcher.Constraint("Horizontal", 8))
sketch13.addConstraint(Sketcher.Constraint("Vertical", 9))
sketch13.addConstraint(Sketcher.Constraint("Horizontal", 10))
sketch13.addConstraint(Sketcher.Constraint("Vertical", 11))
sketch13.addConstraint(Sketcher.Constraint("Horizontal", 12))
sketch13.addConstraint(Sketcher.Constraint("Vertical", 13))
sketch13.addConstraint(Sketcher.Constraint("Horizontal", 14))
sketch13.addConstraint(Sketcher.Constraint("Vertical", 15))
sketch13.addConstraint(Sketcher.Constraint("Symmetric", 4, 2, 7, 2, -2))
sketch13.addConstraint(Sketcher.Constraint("Symmetric", 2, 2, 9, 2, -2))
sketch13.addConstraint(Sketcher.Constraint("Horizontal", 8, 2, 12, 2))
sketch13.addConstraint(Sketcher.Constraint("Horizontal", 10, 2, 13, 2))
sketch13.addConstraint(Sketcher.Constraint("Vertical", 1, 2, 4, 2))
sketch13.addConstraint(Sketcher.Constraint("Vertical", 7, 2, 10, 2))
sketch13.addConstraint(Sketcher.Constraint("Equal", 10, 1))
sketch13.addConstraint(Sketcher.Constraint("Equal", 1, 5))
sketch13.addConstraint(Sketcher.Constraint("DistanceX", 0, 2, 0, 1, Q("6 mm")))
sketch13.addConstraint(Sketcher.Constraint("DistanceX", 2, 1, 2, 2, Q("1 mm")))
sketch13.addConstraint(Sketcher.Constraint("DistanceX", 12, 2, 12, 1, Q("2 mm")))
sketch13.addConstraint(Sketcher.Constraint("DistanceY", 3, 2, 3, 1, Q("5 mm")))
sketch13.addConstraint(Sketcher.Constraint("DistanceY", -1, 1, 0, 2, Q("20 mm")))
sketch13.addConstraint(Sketcher.Constraint("DistanceX", 12, 2, -1, 1, Q("1 mm")))
pad4 = doc.addObject("PartDesign::Pad", "Pad003")
body.addObject(pad4)
pad4.Profile = sketch13
pad4.Length = 2

sketch14 = doc.addObject("Sketcher::SketchObject", "Sketch013")
body.addObject(sketch14)
sketch14.Placement = App.Placement(V(42.717414, -35.844166, 0), App.Rotation(V(0.64278761, 0.766044443, 0), V(0, 0, 1), V(0.766044443, -0.64278761, 0), "ZXY"))
sketch14.addGeometry(Part.LineSegment(V(3.25, 20, 0), V(-3.25, 20, 0)), False)
sketch14.addGeometry(Part.LineSegment(V(-3.25, 20, 0), V(-3.25, 19, 0)), False)
sketch14.addGeometry(Part.LineSegment(V(-3.25, 19, 0), V(-2.5, 19, 0)), False)
sketch14.addGeometry(Part.LineSegment(V(-2.5, 19, 0), V(-2.5, 14, 0)), False)
sketch14.addGeometry(Part.LineSegment(V(-2.5, 14, 0), V(-3.25, 14, 0)), False)
sketch14.addGeometry(Part.LineSegment(V(-3.25, 14, 0), V(-3.25, 13, 0)), False)
sketch14.addGeometry(Part.LineSegment(V(-3.25, 13, 0), V(3.25, 13, 0)), False)
sketch14.addGeometry(Part.LineSegment(V(3.25, 13, 0), V(3.25, 14, 0)), False)
sketch14.addGeometry(Part.LineSegment(V(3.25, 14, 0), V(2.5, 14, 0)), False)
sketch14.addGeometry(Part.LineSegment(V(2.5, 14, 0), V(2.5, 19, 0)), False)
sketch14.addGeometry(Part.LineSegment(V(2.5, 19, 0), V(3.25, 19, 0)), False)
sketch14.addGeometry(Part.LineSegment(V(3.25, 19, 0), V(3.25, 20, 0)), False)
sketch14.addGeometry(Part.LineSegment(V(-0.5, 14, 0), V(-1.5, 14, 0)), False)
sketch14.addGeometry(Part.LineSegment(V(-1.5, 14, 0), V(-1.5, 19, 0)), False)
sketch14.addGeometry(Part.LineSegment(V(-1.5, 19, 0), V(-0.5, 19, 0)), False)
sketch14.addGeometry(Part.LineSegment(V(-0.5, 19, 0), V(-0.5, 14, 0)), False)
sketch14.addGeometry(Part.LineSegment(V(1.5, 14, 0), V(0.5, 14, 0)), False)
sketch14.addGeometry(Part.LineSegment(V(0.5, 14, 0), V(0.5, 19, 0)), False)
sketch14.addGeometry(Part.LineSegment(V(0.5, 19, 0), V(1.5, 19, 0)), False)
sketch14.addGeometry(Part.LineSegment(V(1.5, 19, 0), V(1.5, 14, 0)), False)
sketch14.addConstraint(Sketcher.Constraint("Coincident", 0, 2, 1, 1))
sketch14.addConstraint(Sketcher.Constraint("Coincident", 1, 2, 2, 1))
sketch14.addConstraint(Sketcher.Constraint("Coincident", 2, 2, 3, 1))
sketch14.addConstraint(Sketcher.Constraint("Coincident", 3, 2, 4, 1))
sketch14.addConstraint(Sketcher.Constraint("Coincident", 4, 2, 5, 1))
sketch14.addConstraint(Sketcher.Constraint("Coincident", 5, 2, 6, 1))
sketch14.addConstraint(Sketcher.Constraint("Coincident", 6, 2, 7, 1))
sketch14.addConstraint(Sketcher.Constraint("Coincident", 7, 2, 8, 1))
sketch14.addConstraint(Sketcher.Constraint("Coincident", 8, 2, 9, 1))
sketch14.addConstraint(Sketcher.Constraint("Coincident", 9, 2, 10, 1))
sketch14.addConstraint(Sketcher.Constraint("Coincident", 10, 2, 11, 1))
sketch14.addConstraint(Sketcher.Constraint("Coincident", 11, 2, 0, 1))
sketch14.addConstraint(Sketcher.Constraint("Coincident", 12, 2, 13, 1))
sketch14.addConstraint(Sketcher.Constraint("Coincident", 13, 2, 14, 1))
sketch14.addConstraint(Sketcher.Constraint("Coincident", 14, 2, 15, 1))
sketch14.addConstraint(Sketcher.Constraint("Coincident", 15, 2, 12, 1))
sketch14.addConstraint(Sketcher.Constraint("Coincident", 16, 2, 17, 1))
sketch14.addConstraint(Sketcher.Constraint("Coincident", 17, 2, 18, 1))
sketch14.addConstraint(Sketcher.Constraint("Coincident", 18, 2, 19, 1))
sketch14.addConstraint(Sketcher.Constraint("Coincident", 19, 2, 16, 1))
sketch14.addConstraint(Sketcher.Constraint("Horizontal", 0))
sketch14.addConstraint(Sketcher.Constraint("Vertical", 1))
sketch14.addConstraint(Sketcher.Constraint("Horizontal", 2))
sketch14.addConstraint(Sketcher.Constraint("Vertical", 3))
sketch14.addConstraint(Sketcher.Constraint("Horizontal", 4))
sketch14.addConstraint(Sketcher.Constraint("Vertical", 5))
sketch14.addConstraint(Sketcher.Constraint("Horizontal", 6))
sketch14.addConstraint(Sketcher.Constraint("Vertical", 7))
sketch14.addConstraint(Sketcher.Constraint("Horizontal", 8))
sketch14.addConstraint(Sketcher.Constraint("Vertical", 9))
sketch14.addConstraint(Sketcher.Constraint("Horizontal", 10))
sketch14.addConstraint(Sketcher.Constraint("Vertical", 11))
sketch14.addConstraint(Sketcher.Constraint("Horizontal", 12))
sketch14.addConstraint(Sketcher.Constraint("Vertical", 13))
sketch14.addConstraint(Sketcher.Constraint("Horizontal", 14))
sketch14.addConstraint(Sketcher.Constraint("Vertical", 15))
sketch14.addConstraint(Sketcher.Constraint("Horizontal", 16))
sketch14.addConstraint(Sketcher.Constraint("Vertical", 17))
sketch14.addConstraint(Sketcher.Constraint("Horizontal", 18))
sketch14.addConstraint(Sketcher.Constraint("Vertical", 19))
sketch14.addConstraint(Sketcher.Constraint("Symmetric", 4, 2, 7, 2, -2))
sketch14.addConstraint(Sketcher.Constraint("Symmetric", 2, 2, 9, 2, -2))
sketch14.addConstraint(Sketcher.Constraint("Symmetric", 15, 2, 16, 2, -2))
sketch14.addConstraint(Sketcher.Constraint("Symmetric", 13, 2, 18, 2, -2))
sketch14.addConstraint(Sketcher.Constraint("Horizontal", 8, 2, 12, 2))
sketch14.addConstraint(Sketcher.Constraint("Horizontal", 10, 2, 13, 2))
sketch14.addConstraint(Sketcher.Constraint("Vertical", 1, 2, 4, 2))
sketch14.addConstraint(Sketcher.Constraint("Vertical", 7, 2, 10, 2))
sketch14.addConstraint(Sketcher.Constraint("Equal", 18, 1))
sketch14.addConstraint(Sketcher.Constraint("Equal", 1, 5))
sketch14.addConstraint(Sketcher.Constraint("DistanceX", 12, 2, 12, 1, Q("1 mm")))
sketch14.addConstraint(Sketcher.Constraint("DistanceY", 3, 2, 3, 1, Q("5 mm")))
sketch14.addConstraint(Sketcher.Constraint("DistanceX", 0, 2, 0, 1, Q("6.5 mm")))
sketch14.addConstraint(Sketcher.Constraint("DistanceY", -1, 1, 0, 2, Q("20 mm")))
sketch14.addConstraint(Sketcher.Constraint("DistanceX", 3, 2, 8, 2, Q("5 mm")))
sketch14.addConstraint(Sketcher.Constraint("DistanceX", 3, 2, 12, 2, Q("1 mm")))
pad5 = doc.addObject("PartDesign::Pad", "Pad004")
body.addObject(pad5)
pad5.Profile = sketch14
pad5.Length = 2

doc.recompute()
